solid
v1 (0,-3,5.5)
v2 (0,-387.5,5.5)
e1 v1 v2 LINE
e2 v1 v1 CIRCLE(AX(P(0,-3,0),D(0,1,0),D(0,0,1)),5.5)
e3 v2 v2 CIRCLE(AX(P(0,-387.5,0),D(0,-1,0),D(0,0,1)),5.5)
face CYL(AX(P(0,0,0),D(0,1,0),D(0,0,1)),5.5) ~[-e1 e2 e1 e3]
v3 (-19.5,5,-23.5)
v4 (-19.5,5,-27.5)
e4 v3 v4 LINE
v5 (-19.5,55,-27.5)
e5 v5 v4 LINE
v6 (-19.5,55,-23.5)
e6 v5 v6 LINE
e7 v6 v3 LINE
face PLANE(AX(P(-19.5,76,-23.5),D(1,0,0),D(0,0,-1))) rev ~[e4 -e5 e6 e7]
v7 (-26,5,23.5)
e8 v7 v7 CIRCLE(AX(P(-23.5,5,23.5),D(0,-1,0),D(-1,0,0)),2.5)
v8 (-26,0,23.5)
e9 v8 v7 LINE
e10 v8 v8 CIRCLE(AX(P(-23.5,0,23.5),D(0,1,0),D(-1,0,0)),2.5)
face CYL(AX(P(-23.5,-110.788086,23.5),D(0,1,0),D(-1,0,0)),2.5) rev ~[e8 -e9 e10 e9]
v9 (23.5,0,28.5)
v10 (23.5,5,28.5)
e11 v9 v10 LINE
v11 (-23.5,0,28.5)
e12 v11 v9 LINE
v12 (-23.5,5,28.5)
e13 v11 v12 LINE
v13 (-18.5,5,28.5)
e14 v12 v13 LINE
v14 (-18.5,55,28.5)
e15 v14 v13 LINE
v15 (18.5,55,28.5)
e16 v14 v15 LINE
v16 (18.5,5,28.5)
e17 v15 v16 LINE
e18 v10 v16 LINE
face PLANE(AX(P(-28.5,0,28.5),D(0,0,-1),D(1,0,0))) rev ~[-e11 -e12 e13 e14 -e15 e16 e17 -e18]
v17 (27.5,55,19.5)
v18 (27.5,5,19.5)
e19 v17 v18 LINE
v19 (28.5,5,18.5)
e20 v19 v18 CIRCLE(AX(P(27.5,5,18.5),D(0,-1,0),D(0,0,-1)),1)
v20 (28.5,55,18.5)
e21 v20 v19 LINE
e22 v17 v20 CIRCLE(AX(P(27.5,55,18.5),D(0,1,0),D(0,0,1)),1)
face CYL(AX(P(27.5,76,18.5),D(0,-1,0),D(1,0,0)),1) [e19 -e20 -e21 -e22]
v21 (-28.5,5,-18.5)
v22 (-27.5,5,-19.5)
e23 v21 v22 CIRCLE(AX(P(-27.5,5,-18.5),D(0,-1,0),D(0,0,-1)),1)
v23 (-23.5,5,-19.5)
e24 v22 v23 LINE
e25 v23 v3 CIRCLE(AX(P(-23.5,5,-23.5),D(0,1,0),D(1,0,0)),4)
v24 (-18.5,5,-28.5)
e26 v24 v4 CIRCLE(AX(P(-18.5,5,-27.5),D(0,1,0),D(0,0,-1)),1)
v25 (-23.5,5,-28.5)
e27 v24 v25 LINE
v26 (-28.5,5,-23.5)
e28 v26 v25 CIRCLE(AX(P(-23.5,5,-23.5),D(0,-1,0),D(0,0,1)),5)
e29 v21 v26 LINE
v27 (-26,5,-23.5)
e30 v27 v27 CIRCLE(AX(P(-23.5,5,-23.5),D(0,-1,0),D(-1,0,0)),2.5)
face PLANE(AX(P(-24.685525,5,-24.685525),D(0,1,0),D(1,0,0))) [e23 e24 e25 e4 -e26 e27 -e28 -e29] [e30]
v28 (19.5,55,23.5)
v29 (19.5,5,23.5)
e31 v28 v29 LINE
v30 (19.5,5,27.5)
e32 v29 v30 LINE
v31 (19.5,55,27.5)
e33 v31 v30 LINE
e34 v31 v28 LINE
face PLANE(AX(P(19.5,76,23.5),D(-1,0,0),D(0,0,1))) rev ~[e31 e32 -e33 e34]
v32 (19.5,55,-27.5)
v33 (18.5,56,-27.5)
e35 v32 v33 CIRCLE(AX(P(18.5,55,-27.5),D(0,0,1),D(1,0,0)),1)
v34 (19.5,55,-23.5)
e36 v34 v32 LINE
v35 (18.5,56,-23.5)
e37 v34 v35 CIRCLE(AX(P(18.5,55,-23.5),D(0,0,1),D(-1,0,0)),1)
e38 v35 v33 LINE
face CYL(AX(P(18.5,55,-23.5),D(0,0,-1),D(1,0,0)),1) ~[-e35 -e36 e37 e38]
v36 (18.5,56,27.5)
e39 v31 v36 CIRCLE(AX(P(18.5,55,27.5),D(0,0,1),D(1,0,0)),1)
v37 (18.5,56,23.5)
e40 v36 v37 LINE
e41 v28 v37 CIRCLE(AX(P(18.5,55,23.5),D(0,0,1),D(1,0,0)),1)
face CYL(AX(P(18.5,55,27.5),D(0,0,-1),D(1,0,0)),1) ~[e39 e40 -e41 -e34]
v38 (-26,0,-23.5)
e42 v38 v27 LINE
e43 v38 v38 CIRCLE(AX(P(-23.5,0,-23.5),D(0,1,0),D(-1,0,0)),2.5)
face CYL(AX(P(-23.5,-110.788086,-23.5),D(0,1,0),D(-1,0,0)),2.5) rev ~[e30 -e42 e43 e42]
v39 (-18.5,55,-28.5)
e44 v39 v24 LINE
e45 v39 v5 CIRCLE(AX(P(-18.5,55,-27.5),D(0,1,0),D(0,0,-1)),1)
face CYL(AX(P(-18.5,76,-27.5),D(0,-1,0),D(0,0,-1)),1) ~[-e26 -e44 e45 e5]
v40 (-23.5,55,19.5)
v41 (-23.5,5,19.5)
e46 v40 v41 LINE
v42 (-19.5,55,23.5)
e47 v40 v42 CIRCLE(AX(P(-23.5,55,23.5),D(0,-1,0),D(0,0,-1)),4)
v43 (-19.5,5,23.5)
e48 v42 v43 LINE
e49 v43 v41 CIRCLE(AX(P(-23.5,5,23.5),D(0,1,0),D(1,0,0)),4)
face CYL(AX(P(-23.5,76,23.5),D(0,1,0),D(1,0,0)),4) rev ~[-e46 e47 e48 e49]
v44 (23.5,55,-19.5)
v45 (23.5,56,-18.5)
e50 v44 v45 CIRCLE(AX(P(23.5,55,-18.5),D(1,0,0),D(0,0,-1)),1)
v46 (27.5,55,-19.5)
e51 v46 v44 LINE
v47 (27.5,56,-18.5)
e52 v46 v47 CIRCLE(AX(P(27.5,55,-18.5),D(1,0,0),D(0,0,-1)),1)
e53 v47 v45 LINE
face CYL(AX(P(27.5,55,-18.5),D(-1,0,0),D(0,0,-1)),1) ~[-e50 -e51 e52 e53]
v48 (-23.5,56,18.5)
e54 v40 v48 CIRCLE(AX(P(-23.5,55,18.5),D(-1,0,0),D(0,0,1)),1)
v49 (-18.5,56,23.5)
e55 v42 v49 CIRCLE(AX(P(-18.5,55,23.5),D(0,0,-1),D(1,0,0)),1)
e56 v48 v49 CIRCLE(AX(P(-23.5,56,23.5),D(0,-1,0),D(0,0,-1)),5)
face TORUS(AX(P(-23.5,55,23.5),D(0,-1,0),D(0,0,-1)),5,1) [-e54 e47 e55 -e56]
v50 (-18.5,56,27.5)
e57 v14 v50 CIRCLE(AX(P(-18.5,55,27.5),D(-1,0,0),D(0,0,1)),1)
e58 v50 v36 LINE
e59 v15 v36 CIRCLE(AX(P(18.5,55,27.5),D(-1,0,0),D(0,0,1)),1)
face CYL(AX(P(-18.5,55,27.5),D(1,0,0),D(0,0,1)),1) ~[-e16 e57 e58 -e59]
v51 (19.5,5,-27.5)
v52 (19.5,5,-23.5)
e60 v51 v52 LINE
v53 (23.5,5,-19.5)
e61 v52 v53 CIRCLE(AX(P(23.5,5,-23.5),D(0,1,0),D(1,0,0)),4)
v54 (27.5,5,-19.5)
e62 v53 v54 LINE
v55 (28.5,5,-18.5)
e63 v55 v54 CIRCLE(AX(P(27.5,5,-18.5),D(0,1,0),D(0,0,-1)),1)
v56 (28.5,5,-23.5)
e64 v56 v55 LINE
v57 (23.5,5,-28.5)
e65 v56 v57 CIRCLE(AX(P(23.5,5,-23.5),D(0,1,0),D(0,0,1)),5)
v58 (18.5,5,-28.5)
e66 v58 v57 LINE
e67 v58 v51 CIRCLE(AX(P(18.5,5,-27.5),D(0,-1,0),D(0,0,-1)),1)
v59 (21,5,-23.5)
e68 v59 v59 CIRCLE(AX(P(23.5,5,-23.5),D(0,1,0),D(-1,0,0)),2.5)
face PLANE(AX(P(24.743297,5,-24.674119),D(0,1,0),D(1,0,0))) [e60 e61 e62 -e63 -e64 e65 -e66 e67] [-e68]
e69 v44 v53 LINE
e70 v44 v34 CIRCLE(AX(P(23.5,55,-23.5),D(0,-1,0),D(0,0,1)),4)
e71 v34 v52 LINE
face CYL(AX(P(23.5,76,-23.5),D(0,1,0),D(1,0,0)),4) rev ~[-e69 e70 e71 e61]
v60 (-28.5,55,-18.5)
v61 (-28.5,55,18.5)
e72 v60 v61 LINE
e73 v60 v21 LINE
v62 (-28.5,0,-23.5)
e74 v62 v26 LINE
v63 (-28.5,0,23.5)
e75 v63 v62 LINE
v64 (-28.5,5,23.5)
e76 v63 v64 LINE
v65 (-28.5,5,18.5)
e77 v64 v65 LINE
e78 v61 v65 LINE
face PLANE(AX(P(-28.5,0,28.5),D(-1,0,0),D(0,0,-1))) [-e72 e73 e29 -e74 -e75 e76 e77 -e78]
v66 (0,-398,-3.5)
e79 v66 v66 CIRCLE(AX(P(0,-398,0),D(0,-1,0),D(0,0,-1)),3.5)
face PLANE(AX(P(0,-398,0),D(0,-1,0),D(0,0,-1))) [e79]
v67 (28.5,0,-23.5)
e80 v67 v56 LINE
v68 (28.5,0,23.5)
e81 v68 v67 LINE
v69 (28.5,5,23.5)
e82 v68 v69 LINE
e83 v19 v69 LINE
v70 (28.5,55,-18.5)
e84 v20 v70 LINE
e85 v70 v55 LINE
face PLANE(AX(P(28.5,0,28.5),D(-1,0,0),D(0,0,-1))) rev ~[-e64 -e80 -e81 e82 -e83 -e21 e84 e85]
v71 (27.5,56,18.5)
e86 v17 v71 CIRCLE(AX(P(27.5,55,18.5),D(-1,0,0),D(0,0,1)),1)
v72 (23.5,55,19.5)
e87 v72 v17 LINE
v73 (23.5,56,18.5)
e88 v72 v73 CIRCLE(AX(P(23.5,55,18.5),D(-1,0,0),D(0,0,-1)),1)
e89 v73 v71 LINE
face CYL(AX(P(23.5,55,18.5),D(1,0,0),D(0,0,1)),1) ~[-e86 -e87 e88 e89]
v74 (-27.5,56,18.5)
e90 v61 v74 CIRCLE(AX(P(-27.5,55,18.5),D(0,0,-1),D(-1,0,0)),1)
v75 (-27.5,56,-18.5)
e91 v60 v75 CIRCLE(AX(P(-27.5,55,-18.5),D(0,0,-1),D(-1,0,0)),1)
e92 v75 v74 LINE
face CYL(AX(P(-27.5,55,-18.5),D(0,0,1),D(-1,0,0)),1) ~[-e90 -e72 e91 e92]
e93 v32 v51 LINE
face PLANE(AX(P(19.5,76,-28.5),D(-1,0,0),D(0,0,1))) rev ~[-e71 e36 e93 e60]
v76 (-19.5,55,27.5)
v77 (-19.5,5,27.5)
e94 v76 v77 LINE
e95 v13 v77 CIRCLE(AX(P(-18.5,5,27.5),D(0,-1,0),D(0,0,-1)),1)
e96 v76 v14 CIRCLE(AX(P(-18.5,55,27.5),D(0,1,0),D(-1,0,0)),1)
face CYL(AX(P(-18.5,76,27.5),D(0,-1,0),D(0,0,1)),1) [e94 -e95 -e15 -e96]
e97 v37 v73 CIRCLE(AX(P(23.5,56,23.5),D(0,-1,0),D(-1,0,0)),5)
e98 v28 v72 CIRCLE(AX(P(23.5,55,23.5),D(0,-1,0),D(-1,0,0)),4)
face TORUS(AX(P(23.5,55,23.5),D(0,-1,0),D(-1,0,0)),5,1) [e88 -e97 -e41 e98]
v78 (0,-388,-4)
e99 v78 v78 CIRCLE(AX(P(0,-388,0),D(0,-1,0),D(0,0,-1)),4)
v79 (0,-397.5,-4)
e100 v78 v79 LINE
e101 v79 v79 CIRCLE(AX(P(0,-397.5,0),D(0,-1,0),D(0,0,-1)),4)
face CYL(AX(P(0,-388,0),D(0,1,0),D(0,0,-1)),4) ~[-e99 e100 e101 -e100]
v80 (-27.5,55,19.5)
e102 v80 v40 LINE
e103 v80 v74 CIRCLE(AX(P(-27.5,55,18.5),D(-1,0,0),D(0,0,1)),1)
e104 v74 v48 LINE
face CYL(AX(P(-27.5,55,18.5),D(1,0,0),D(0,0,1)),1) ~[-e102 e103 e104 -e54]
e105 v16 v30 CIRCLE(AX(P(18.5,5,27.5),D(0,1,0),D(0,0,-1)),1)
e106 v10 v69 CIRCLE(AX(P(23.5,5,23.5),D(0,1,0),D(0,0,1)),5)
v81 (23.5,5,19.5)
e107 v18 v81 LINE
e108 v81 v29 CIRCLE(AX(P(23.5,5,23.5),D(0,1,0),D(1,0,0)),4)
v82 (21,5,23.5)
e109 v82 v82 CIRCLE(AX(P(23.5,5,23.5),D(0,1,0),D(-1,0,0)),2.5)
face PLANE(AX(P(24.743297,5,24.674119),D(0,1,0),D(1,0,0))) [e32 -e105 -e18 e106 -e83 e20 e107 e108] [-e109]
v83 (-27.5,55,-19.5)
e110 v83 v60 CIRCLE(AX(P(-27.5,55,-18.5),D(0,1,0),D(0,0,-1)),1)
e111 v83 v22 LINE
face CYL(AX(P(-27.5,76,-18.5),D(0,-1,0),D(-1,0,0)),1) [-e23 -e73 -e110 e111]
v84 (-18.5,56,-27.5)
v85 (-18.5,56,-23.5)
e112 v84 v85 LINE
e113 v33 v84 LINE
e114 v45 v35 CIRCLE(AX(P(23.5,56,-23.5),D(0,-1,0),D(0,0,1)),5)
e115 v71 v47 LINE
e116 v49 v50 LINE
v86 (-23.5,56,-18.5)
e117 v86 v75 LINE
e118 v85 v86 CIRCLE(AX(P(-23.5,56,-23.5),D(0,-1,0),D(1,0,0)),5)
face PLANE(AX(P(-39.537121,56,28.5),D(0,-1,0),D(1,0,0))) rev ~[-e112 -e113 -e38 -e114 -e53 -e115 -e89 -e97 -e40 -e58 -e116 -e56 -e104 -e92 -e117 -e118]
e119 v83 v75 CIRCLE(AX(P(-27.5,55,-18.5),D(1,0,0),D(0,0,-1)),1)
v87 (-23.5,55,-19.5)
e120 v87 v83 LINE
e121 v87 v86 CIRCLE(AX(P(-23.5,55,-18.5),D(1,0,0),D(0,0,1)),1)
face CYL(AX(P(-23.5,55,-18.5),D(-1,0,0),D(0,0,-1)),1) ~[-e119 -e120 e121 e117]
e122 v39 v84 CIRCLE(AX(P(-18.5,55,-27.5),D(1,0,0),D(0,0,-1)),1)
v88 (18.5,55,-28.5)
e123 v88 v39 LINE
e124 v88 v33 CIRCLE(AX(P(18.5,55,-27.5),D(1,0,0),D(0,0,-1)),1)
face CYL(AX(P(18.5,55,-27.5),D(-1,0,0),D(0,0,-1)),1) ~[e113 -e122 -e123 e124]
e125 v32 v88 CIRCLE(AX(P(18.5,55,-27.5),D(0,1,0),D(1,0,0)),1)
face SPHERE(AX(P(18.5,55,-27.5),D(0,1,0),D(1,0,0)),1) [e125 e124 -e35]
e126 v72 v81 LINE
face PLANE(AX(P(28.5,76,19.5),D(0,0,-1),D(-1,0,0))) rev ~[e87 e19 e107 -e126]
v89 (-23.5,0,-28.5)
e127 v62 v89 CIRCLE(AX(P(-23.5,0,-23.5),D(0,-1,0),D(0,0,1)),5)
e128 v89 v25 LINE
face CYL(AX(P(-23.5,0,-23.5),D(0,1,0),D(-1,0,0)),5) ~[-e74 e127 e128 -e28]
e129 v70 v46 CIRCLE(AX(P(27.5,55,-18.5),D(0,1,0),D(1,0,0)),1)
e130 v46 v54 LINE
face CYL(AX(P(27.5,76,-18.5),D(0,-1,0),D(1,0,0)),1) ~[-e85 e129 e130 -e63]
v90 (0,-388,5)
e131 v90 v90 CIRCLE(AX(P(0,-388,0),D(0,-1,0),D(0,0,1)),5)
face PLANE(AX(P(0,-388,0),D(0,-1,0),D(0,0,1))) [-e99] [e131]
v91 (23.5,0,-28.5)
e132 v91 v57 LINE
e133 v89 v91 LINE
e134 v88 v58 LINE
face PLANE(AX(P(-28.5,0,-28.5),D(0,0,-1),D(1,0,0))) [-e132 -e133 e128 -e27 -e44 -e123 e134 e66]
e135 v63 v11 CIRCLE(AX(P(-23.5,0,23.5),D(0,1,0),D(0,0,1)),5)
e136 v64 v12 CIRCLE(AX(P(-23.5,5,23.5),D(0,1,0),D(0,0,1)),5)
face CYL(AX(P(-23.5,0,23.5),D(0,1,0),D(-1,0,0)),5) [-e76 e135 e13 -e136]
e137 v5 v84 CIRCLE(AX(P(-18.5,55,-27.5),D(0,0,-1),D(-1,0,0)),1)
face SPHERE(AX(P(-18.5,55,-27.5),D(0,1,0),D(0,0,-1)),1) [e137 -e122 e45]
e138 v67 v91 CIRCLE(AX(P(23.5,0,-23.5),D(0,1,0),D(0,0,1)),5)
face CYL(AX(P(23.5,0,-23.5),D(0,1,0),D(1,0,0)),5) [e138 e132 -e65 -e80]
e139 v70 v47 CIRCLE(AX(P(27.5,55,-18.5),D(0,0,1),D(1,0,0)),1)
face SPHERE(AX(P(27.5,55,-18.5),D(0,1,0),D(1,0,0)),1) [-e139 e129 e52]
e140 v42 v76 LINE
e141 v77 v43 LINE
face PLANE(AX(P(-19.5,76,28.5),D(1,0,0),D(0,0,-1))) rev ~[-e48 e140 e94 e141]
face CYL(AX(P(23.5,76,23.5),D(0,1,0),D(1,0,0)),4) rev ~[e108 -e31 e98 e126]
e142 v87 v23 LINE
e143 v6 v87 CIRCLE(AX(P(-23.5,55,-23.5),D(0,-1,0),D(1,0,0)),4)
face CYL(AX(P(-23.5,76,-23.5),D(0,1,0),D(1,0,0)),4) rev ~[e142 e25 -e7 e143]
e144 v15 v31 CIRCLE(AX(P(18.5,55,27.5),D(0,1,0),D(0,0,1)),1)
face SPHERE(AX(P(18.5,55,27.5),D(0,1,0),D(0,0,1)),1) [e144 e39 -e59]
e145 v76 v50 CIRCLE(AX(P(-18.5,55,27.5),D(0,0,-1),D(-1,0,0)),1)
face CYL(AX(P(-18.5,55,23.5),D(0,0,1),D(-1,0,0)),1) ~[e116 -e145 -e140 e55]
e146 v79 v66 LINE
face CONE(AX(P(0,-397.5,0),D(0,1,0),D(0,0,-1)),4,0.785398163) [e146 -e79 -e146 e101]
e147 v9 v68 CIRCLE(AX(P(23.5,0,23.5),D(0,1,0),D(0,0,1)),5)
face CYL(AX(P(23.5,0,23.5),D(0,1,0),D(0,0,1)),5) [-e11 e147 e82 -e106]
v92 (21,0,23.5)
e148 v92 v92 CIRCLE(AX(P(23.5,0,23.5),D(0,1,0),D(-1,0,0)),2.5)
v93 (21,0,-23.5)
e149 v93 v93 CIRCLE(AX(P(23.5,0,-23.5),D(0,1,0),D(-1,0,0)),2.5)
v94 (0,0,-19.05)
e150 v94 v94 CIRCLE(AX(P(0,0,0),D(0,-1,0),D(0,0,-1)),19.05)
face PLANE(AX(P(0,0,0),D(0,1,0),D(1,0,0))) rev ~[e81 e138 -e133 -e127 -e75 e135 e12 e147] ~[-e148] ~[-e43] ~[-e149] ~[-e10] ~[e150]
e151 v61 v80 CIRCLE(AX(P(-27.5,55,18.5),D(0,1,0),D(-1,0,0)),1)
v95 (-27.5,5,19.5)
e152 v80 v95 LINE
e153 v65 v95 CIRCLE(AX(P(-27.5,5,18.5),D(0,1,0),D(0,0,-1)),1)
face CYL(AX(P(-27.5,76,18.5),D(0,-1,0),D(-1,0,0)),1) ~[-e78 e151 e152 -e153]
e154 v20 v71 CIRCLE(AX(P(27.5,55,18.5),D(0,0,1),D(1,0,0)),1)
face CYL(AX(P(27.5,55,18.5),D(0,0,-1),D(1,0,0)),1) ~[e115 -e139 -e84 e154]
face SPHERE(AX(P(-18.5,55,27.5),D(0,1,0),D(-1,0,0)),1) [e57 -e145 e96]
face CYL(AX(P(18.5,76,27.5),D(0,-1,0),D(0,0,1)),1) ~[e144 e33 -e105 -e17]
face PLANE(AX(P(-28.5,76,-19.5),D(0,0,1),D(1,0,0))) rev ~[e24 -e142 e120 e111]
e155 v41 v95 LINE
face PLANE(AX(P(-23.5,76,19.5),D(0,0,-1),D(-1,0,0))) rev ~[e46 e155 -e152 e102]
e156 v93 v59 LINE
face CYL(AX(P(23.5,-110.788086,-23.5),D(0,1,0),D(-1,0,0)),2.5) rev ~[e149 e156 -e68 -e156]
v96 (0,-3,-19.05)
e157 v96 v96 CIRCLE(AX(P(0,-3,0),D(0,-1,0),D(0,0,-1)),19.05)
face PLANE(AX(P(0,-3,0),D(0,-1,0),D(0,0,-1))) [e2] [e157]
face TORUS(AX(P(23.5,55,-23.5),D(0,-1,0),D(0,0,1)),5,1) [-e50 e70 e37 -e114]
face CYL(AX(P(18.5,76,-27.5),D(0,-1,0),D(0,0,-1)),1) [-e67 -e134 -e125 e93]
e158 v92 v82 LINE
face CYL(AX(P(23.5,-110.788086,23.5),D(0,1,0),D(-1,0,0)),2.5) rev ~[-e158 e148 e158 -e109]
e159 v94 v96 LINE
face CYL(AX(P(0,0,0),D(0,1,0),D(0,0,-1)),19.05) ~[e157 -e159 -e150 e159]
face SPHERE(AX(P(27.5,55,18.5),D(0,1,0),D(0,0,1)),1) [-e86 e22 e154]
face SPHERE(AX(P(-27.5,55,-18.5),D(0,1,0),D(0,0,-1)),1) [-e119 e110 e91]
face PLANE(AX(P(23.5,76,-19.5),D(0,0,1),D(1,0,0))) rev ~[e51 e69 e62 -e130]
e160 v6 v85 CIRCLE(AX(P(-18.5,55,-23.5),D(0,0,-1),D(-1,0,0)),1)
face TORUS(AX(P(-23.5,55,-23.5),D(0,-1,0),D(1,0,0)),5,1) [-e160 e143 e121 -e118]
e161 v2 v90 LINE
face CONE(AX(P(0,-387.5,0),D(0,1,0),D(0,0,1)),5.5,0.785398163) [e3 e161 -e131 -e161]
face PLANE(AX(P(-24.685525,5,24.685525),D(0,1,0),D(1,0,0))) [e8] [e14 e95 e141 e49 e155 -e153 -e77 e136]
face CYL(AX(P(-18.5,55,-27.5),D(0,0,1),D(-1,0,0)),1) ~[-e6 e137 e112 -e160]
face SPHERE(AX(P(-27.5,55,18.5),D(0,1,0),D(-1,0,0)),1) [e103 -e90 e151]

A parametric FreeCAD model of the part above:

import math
import FreeCAD as App
import Part
import Sketcher


def edges_at(feature, points):
    """Names of the edges that pass closest to the given points."""
    edges = feature.Shape.Edges
    near = lambda p: min(range(len(edges)), key=lambda i: edges[i].distToShape(Part.Vertex(*p))[0])
    return sorted({f"Edge{near(p) + 1}" for p in points})

doc = App.newDocument("Part")
params = doc.addObject("Spreadsheet::Sheet", "Params")
for row, (alias, value) in enumerate([
    ("sketch1_width", "57 mm"),
    ("pad1_length", "76 mm"),
    ("sketch2_diameter", "5 mm"),
    ("hole_diameter", "5 mm"),
    ("sketch3_diameter", "5 mm"),
    ("sketch3_radius", "4 mm"),
    ("pocket1_length", "71 mm"),
    ("fillet_radius", "5 mm"),
    ("sketch4_diameter", "6 mm"),
    ("pad2_length", "101 mm"),
    ("sketch5_diameter", "38.1 mm"),
    ("pad3_length", "3 mm"),
    ("fillet2_radius", "1 mm"),
    ("sketch6_diameter", "11 mm"),
    ("pad4_length", "388 mm"),
    ("chamfer_size", "0.5 mm"),
    ("sketch7_diameter", "8 mm"),
    ("pad5_length", "10 mm"),
    ("chamfer2_size", "0.5 mm"),
    ("fillet3_radius", "1 mm"),
], start=1):
    params.set(f"A{row}", alias)
    params.set(f"B{row}", "=" + value)
    params.setAlias(f"B{row}", alias)

body = doc.addObject("PartDesign::Body", "Body")

# Sketch on XZ plane
sketch1 = body.newObject("Sketcher::SketchObject", "Sketch")
sketch1.AttachmentSupport = (doc.getObject("XZ_Plane"), [""])
sketch1.MapMode = "FlatFace"
sketch1.addGeometry(Part.LineSegment(App.Vector(-28, -28, 0), App.Vector(-28, 28, 0)), False)
sketch1.addGeometry(Part.LineSegment(App.Vector(-28, 28, 0), App.Vector(28, 28, 0)), False)
sketch1.addGeometry(Part.LineSegment(App.Vector(28, 28, 0), App.Vector(28, -28, 0)), False)
sketch1.addGeometry(Part.LineSegment(App.Vector(28, -28, 0), App.Vector(-28, -28, 0)), False)
sketch1.addConstraint(Sketcher.Constraint("Coincident", 0, 2, 1, 1))
sketch1.addConstraint(Sketcher.Constraint("Coincident", 1, 2, 2, 1))
sketch1.addConstraint(Sketcher.Constraint("Coincident", 2, 2, 3, 1))
sketch1.addConstraint(Sketcher.Constraint("Coincident", 3, 2, 0, 1))
sketch1.addConstraint(Sketcher.Constraint("Vertical", 0))
sketch1.addConstraint(Sketcher.Constraint("Horizontal", 1))
sketch1.addConstraint(Sketcher.Constraint("Vertical", 2))
sketch1.addConstraint(Sketcher.Constraint("Horizontal", 3))
sketch1.addConstraint(Sketcher.Constraint("Symmetric", 0, 2, 2, 2, -1, 1))
sketch1.addConstraint(Sketcher.Constraint("Equal", 3, 0))
sketch1.addConstraint(Sketcher.Constraint("DistanceX", 1, 1, 1, 2, 57.0))
sketch1.setExpression("Constraints[10]", "Params.sketch1_width")
pad1 = body.newObject("PartDesign::Pad", "Pad")
pad1.Profile = sketch1
pad1.setExpression("Length", "Params.pad1_length")
pad1.Reversed = True

# Sketch on XZ plane
sketch2 = body.newObject("Sketcher::SketchObject", "Sketch001")
sketch2.AttachmentSupport = (doc.getObject("XZ_Plane"), [""])
sketch2.MapMode = "FlatFace"
sketch2.addGeometry(Part.Circle(App.Vector(-23.5, 23.5, 0), App.Vector(0, 0, 1), 2.5), False)
sketch2.addGeometry(Part.Circle(App.Vector(23.5, 23.5, 0), App.Vector(0, 0, 1), 2.5), False)
sketch2.addGeometry(Part.Circle(App.Vector(23.5, -23.5, 0), App.Vector(0, 0, 1), 2.5), False)
sketch2.addGeometry(Part.Circle(App.Vector(-23.5, -23.5, 0), App.Vector(0, 0, 1), 2.5), False)
sketch2.addConstraint(Sketcher.Constraint("Equal", 0, 1))
sketch2.addConstraint(Sketcher.Constraint("Equal", 1, 2))
sketch2.addConstraint(Sketcher.Constraint("Equal", 2, 3))
sketch2.addConstraint(Sketcher.Constraint("Symmetric", 0, 3, 2, 3, -1, 1))
sketch2.addConstraint(Sketcher.Constraint("Symmetric", 1, 3, 3, 3, -1, 1))
sketch2.addConstraint(Sketcher.Constraint("Symmetric", 0, 3, 1, 3, -2))
sketch2.addConstraint(Sketcher.Constraint("Diameter", 0, 5.0))
sketch2.addConstraint(Sketcher.Constraint("DistanceX", 0, 3, 1, 3, 47.0))
sketch2.addConstraint(Sketcher.Constraint("DistanceY", 2, 3, 1, 3, 47.0))
sketch2.setExpression("Constraints[6]", "Params.sketch2_diameter")
doc.recompute()
hole = body.newObject("PartDesign::Hole", "Hole")
hole.Profile = sketch2
hole.ThreadType = "None"
hole.setExpression("Diameter", "Params.hole_diameter")
hole.DepthType = "ThroughAll"

# Sketch on XZ plane
sketch3 = body.newObject("Sketcher::SketchObject", "Sketch002")
sketch3.AttachmentSupport = (doc.getObject("XZ_Plane"), [""])
sketch3.MapMode = "FlatFace"
sketch3.AttachmentOffset = App.Placement(App.Vector(0, 0, -76), App.Rotation())
sketch3.addGeometry(Part.LineSegment(App.Vector(-19.5, -32.5, 0), App.Vector(-33.9, -32.5, 0)), False)
sketch3.addGeometry(Part.LineSegment(App.Vector(-33.9, -32.5, 0), App.Vector(-33.9, -19.5, 0)), False)
sketch3.addGeometry(Part.LineSegment(App.Vector(-33.9, -19.5, 0), App.Vector(-23.5, -19.5, 0)), False)
sketch3.addGeometry(Part.ArcOfCircle(Part.Circle(App.Vector(-23.5, -23.5, 0), App.Vector(0, 0, 1), 4), math.radians(0), math.radians(90)), False)
sketch3.addGeometry(Part.LineSegment(App.Vector(-19.5, -23.5, 0), App.Vector(-19.5, -32.5, 0)), False)
sketch3.addGeometry(Part.Circle(App.Vector(-23.5, -23.5, 0), App.Vector(0, 0, 1), 2.5), False)
sketch3.addGeometry(Part.LineSegment(App.Vector(19.5, -36.5, 0), App.Vector(19.5, -23.5, 0)), False)
sketch3.addGeometry(Part.ArcOfCircle(Part.Circle(App.Vector(23.5, -23.5, 0), App.Vector(0, 0, 1), 4), math.radians(90), math.radians(180)), False)
sketch3.addGeometry(Part.LineSegment(App.Vector(23.5, -19.5, 0), App.Vector(41.2, -19.5, 0)), False)
sketch3.addGeometry(Part.LineSegment(App.Vector(41.2, -19.5, 0), App.Vector(41.2, -36.5, 0)), False)
sketch3.addGeometry(Part.LineSegment(App.Vector(41.2, -36.5, 0), App.Vector(19.5, -36.5, 0)), False)
sketch3.addGeometry(Part.Circle(App.Vector(23.5, -23.5, 0), App.Vector(0, 0, 1), 2.5), False)
sketch3.addGeometry(Part.ArcOfCircle(Part.Circle(App.Vector(23.5, 23.5, 0), App.Vector(0, 0, 1), 4), math.radians(180), math.radians(270)), False)
sketch3.addGeometry(Part.LineSegment(App.Vector(19.5, 23.5, 0), App.Vector(19.5, 40.1, 0)), False)
sketch3.addGeometry(Part.LineSegment(App.Vector(19.5, 40.1, 0), App.Vector(44.3, 40.1, 0)), False)
sketch3.addGeometry(Part.LineSegment(App.Vector(44.3, 40.1, 0), App.Vector(44.3, 19.5, 0)), False)
sketch3.addGeometry(Part.LineSegment(App.Vector(44.3, 19.5, 0), App.Vector(23.5, 19.5, 0)), False)
sketch3.addGeometry(Part.Circle(App.Vector(23.5, 23.5, 0), App.Vector(0, 0, 1), 2.5), False)
sketch3.addGeometry(Part.LineSegment(App.Vector(-37.7, 19.5, 0), App.Vector(-37.7, 37.8, 0)), False)
sketch3.addGeometry(Part.LineSegment(App.Vector(-37.7, 37.8, 0), App.Vector(-19.5, 37.8, 0)), False)
sketch3.addGeometry(Part.LineSegment(App.Vector(-19.5, 37.8, 0), App.Vector(-19.5, 23.5, 0)), False)
sketch3.addGeometry(Part.ArcOfCircle(Part.Circle(App.Vector(-23.5, 23.5, 0), App.Vector(0, 0, 1), 4), math.radians(-90), math.radians(0)), False)
sketch3.addGeometry(Part.LineSegment(App.Vector(-23.5, 19.5, 0), App.Vector(-37.7, 19.5, 0)), False)
sketch3.addGeometry(Part.Circle(App.Vector(-23.5, 23.5, 0), App.Vector(0, 0, 1), 2.5), False)
sketch3.addConstraint(Sketcher.Constraint("Coincident", 0, 2, 1, 1))
sketch3.addConstraint(Sketcher.Constraint("Coincident", 1, 2, 2, 1))
sketch3.addConstraint(Sketcher.Constraint("Tangent", 2, 2, 3, 2))
sketch3.addConstraint(Sketcher.Constraint("Tangent", 3, 1, 4, 1))
sketch3.addConstraint(Sketcher.Constraint("Coincident", 4, 2, 0, 1))
sketch3.addConstraint(Sketcher.Constraint("Tangent", 6, 2, 7, 2))
sketch3.addConstraint(Sketcher.Constraint("Tangent", 7, 1, 8, 1))
sketch3.addConstraint(Sketcher.Constraint("Coincident", 8, 2, 9, 1))
sketch3.addConstraint(Sketcher.Constraint("Coincident", 9, 2, 10, 1))
sketch3.addConstraint(Sketcher.Constraint("Coincident", 10, 2, 6, 1))
sketch3.addConstraint(Sketcher.Constraint("Tangent", 12, 1, 13, 1))
sketch3.addConstraint(Sketcher.Constraint("Coincident", 13, 2, 14, 1))
sketch3.addConstraint(Sketcher.Constraint("Coincident", 14, 2, 15, 1))
sketch3.addConstraint(Sketcher.Constraint("Coincident", 15, 2, 16, 1))
sketch3.addConstraint(Sketcher.Constraint("Tangent", 16, 2, 12, 2))
sketch3.addConstraint(Sketcher.Constraint("Coincident", 18, 2, 19, 1))
sketch3.addConstraint(Sketcher.Constraint("Coincident", 19, 2, 20, 1))
sketch3.addConstraint(Sketcher.Constraint("Tangent", 20, 2, 21, 2))
sketch3.addConstraint(Sketcher.Constraint("Tangent", 21, 1, 22, 1))
sketch3.addConstraint(Sketcher.Constraint("Coincident", 22, 2, 18, 1))
sketch3.addConstraint(Sketcher.Constraint("Horizontal", 0))
sketch3.addConstraint(Sketcher.Constraint("Vertical", 1))
sketch3.addConstraint(Sketcher.Constraint("Horizontal", 2))
sketch3.addConstraint(Sketcher.Constraint("Vertical", 4))
sketch3.addConstraint(Sketcher.Constraint("Vertical", 6))
sketch3.addConstraint(Sketcher.Constraint("Horizontal", 8))
sketch3.addConstraint(Sketcher.Constraint("Vertical", 9))
sketch3.addConstraint(Sketcher.Constraint("Horizontal", 10))
sketch3.addConstraint(Sketcher.Constraint("Vertical", 13))
sketch3.addConstraint(Sketcher.Constraint("Horizontal", 14))
sketch3.addConstraint(Sketcher.Constraint("Vertical", 15))
sketch3.addConstraint(Sketcher.Constraint("Horizontal", 16))
sketch3.addConstraint(Sketcher.Constraint("Vertical", 18))
sketch3.addConstraint(Sketcher.Constraint("Horizontal", 19))
sketch3.addConstraint(Sketcher.Constraint("Vertical", 20))
sketch3.addConstraint(Sketcher.Constraint("Horizontal", 22))
sketch3.addConstraint(Sketcher.Constraint("Coincident", 5, 3, 3, 3))
sketch3.addConstraint(Sketcher.Constraint("Coincident", 11, 3, 7, 3))
sketch3.addConstraint(Sketcher.Constraint("Coincident", 17, 3, 12, 3))
sketch3.addConstraint(Sketcher.Constraint("Coincident", 23, 3, 21, 3))
sketch3.addConstraint(Sketcher.Constraint("Equal", 3, 7))
sketch3.addConstraint(Sketcher.Constraint("Equal", 5, 11))
sketch3.addConstraint(Sketcher.Constraint("Equal", 7, 12))
sketch3.addConstraint(Sketcher.Constraint("Equal", 11, 17))
sketch3.addConstraint(Sketcher.Constraint("Equal", 12, 21))
sketch3.addConstraint(Sketcher.Constraint("Equal", 17, 23))
sketch3.addConstraint(Sketcher.Constraint("Symmetric", 3, 3, 12, 3, -1, 1))
sketch3.addConstraint(Sketcher.Constraint("Symmetric", 7, 3, 21, 3, -1, 1))
sketch3.addConstraint(Sketcher.Constraint("Symmetric", 3, 3, 7, 3, -2))
sketch3.addConstraint(Sketcher.Constraint("Diameter", 5, 5.0))
sketch3.addConstraint(Sketcher.Constraint("Radius", 3, 4.0))
sketch3.addConstraint(Sketcher.Constraint("DistanceX", 3, 3, 7, 3, 47.0))
sketch3.addConstraint(Sketcher.Constraint("DistanceY", 7, 3, 12, 3, 47.0))
sketch3.addConstraint(Sketcher.Constraint("DistanceX", 14, 1, 14, 2, 24.75221))
sketch3.addConstraint(Sketcher.Constraint("DistanceY", 1, 1, 1, 2, 13.011741))
sketch3.addConstraint(Sketcher.Constraint("DistanceY", 6, 1, 6, 2, 12.97156))
sketch3.addConstraint(Sketcher.Constraint("DistanceY", 13, 1, 13, 2, 16.55043))
sketch3.addConstraint(Sketcher.Constraint("DistanceY", 18, 1, 18, 2, 18.328232))
sketch3.addConstraint(Sketcher.Constraint("DistanceX", 0, 2, 0, 1, 14.408906))
sketch3.addConstraint(Sketcher.Constraint("DistanceX", 8, 1, 8, 2, 17.668353))
sketch3.addConstraint(Sketcher.Constraint("DistanceX", 19, 1, 19, 2, 18.170787))
sketch3.setExpression("Constraints[49]", "Params.sketch3_diameter")
sketch3.setExpression("Constraints[50]", "Params.sketch3_radius")
pocket1 = body.newObject("PartDesign::Pocket", "Pocket")
pocket1.Profile = sketch3
pocket1.setExpression("Length", "Params.pocket1_length")
pocket1.Reversed = True
doc.recompute()

fillet = body.newObject("PartDesign::Fillet", "Fillet")
fillet.Base = (pocket1, edges_at(pocket1, [
    (-28.5, 2.5, 28.5),
    (-28.5, 2.5, -28.5),
    (28.5, 2.5, -28.5),
    (28.5, 2.5, 28.5),
]))
fillet.setExpression("Radius", "Params.fillet_radius")
body2 = doc.addObject("PartDesign::Body", "Body001")

# Sketch on XZ plane
sketch4 = body2.newObject("Sketcher::SketchObject", "Sketch003")
sketch4.AttachmentSupport = (doc.getObject("XZ_Plane001"), [""])
sketch4.MapMode = "FlatFace"
sketch4.AttachmentOffset = App.Placement(App.Vector(0, 0, -76), App.Rotation())
sketch4.addGeometry(Part.Circle(App.Vector(0, 0, 0), App.Vector(0, 0, 1), 3), False)
sketch4.addConstraint(Sketcher.Constraint("Coincident", 0, 3, -1, 1))
sketch4.addConstraint(Sketcher.Constraint("Diameter", 0, 6.0))
sketch4.setExpression("Constraints[1]", "Params.sketch4_diameter")
pad2 = body2.newObject("PartDesign::Pad", "Pad001")
pad2.Profile = sketch4
pad2.setExpression("Length", "Params.pad2_length")
doc.recompute()

boolean = body.newObject("PartDesign::Boolean", "Boolean")
boolean.Type = "Fuse"
boolean.addObjects([body2])

# Sketch on XZ plane
sketch5 = body.newObject("Sketcher::SketchObject", "Sketch004")
sketch5.AttachmentSupport = (doc.getObject("XZ_Plane"), [""])
sketch5.MapMode = "FlatFace"
sketch5.addGeometry(Part.Circle(App.Vector(0, 0, 0), App.Vector(0, 0, 1), 19), False)
sketch5.addConstraint(Sketcher.Constraint("Coincident", 0, 3, -1, 1))
sketch5.addConstraint(Sketcher.Constraint("Diameter", 0, 38.1))
sketch5.setExpression("Constraints[1]", "Params.sketch5_diameter")
pad3 = body.newObject("PartDesign::Pad", "Pad002")
pad3.Profile = sketch5
pad3.setExpression("Length", "Params.pad3_length")
doc.recompute()

fillet2 = body.newObject("PartDesign::Fillet", "Fillet001")
fillet2.Base = (pad3, edges_at(pad3, [
    (-28.5, 40.5, 19.5),
    (0, 76, 28.5),
    (-19.5, 40.5, 28.5),
    (-19.5, 76, 26),
    (-20.672, 76, 20.672),
    (-26, 76, 19.5),
    (-28.5, 76, 0),
    (-28.5, 40.5, -19.5),
    (-19.5, 40.5, -28.5),
    (-19.5, 76, -26),
    (-26, 76, -19.5),
    (-20.672, 76, -20.672),
    (0, 76, -28.5),
    (19.5, 76, -26),
    (26, 76, -19.5),
    (20.672, 76, -20.672),
    (19.5, 40.5, -28.5),
    (28.5, 40.5, -19.5),
    (19.5, 40.5, 28.5),
    (28.5, 76, 0),
    (26, 76, 19.5),
    (19.5, 76, 26),
    (20.672, 76, 20.672),
    (28.5, 40.5, 19.5),
]))
fillet2.setExpression("Radius", "Params.fillet2_radius")

# Sketch on XZ plane
sketch6 = body.newObject("Sketcher::SketchObject", "Sketch005")
sketch6.AttachmentSupport = (doc.getObject("XZ_Plane"), [""])
sketch6.MapMode = "FlatFace"
sketch6.addGeometry(Part.Circle(App.Vector(0, 0, 0), App.Vector(0, 0, 1), 6), False)
sketch6.addConstraint(Sketcher.Constraint("Coincident", 0, 3, -1, 1))
sketch6.addConstraint(Sketcher.Constraint("Diameter", 0, 11.0))
sketch6.setExpression("Constraints[1]", "Params.sketch6_diameter")
pad4 = body.newObject("PartDesign::Pad", "Pad003")
pad4.Profile = sketch6
pad4.setExpression("Length", "Params.pad4_length")
doc.recompute()

chamfer = body.newObject("PartDesign::Chamfer", "Chamfer")
chamfer.Base = (pad4, edges_at(pad4, [(0, -388, -5.5)]))
chamfer.setExpression("Size", "Params.chamfer_size")

# Sketch on XZ plane
sketch7 = body.newObject("Sketcher::SketchObject", "Sketch006")
sketch7.AttachmentSupport = (doc.getObject("XZ_Plane"), [""])
sketch7.MapMode = "FlatFace"
sketch7.AttachmentOffset = App.Placement(App.Vector(0, 0, 388), App.Rotation())
sketch7.addGeometry(Part.Circle(App.Vector(0, 0, 0), App.Vector(0, 0, 1), 4), False)
sketch7.addConstraint(Sketcher.Constraint("Coincident", 0, 3, -1, 1))
sketch7.addConstraint(Sketcher.Constraint("Diameter", 0, 8.0))
sketch7.setExpression("Constraints[1]", "Params.sketch7_diameter")
pad5 = body.newObject("PartDesign::Pad", "Pad004")
pad5.Profile = sketch7
pad5.setExpression("Length", "Params.pad5_length")
doc.recompute()

chamfer2 = body.newObject("PartDesign::Chamfer", "Chamfer001")
chamfer2.Base = (pad5, edges_at(pad5, [(0, -398, 4)]))
chamfer2.setExpression("Size", "Params.chamfer2_size")

# Sketch on XY plane
sketch8 = body.newObject("Sketcher::SketchObject", "Sketch007")
sketch8.AttachmentSupport = (doc.getObject("XY_Plane"), [""])
sketch8.MapMode = "FlatFace"
sketch8.AttachmentOffset = App.Placement(App.Vector(0, 0, 28.5), App.Rotation())
sketch8.addGeometry(Part.LineSegment(App.Vector(-40, 88, 0), App.Vector(-40, 56, 0)), False)
sketch8.addGeometry(Part.LineSegment(App.Vector(-40, 56, 0), App.Vector(42, 56, 0)), False)
sketch8.addGeometry(Part.LineSegment(App.Vector(42, 56, 0), App.Vector(42, 88, 0)), False)
sketch8.addGeometry(Part.LineSegment(App.Vector(42, 88, 0), App.Vector(-40, 88, 0)), False)
sketch8.addConstraint(Sketcher.Constraint("Coincident", 0, 2, 1, 1))
sketch8.addConstraint(Sketcher.Constraint("Coincident", 1, 2, 2, 1))
sketch8.addConstraint(Sketcher.Constraint("Coincident", 2, 2, 3, 1))
sketch8.addConstraint(Sketcher.Constraint("Coincident", 3, 2, 0, 1))
sketch8.addConstraint(Sketcher.Constraint("Vertical", 0))
sketch8.addConstraint(Sketcher.Constraint("Horizontal", 1))
sketch8.addConstraint(Sketcher.Constraint("Vertical", 2))
sketch8.addConstraint(Sketcher.Constraint("Horizontal", 3))
sketch8.addConstraint(Sketcher.Constraint("DistanceY", -1, 1, 0, 2, 56.0))
sketch8.addConstraint(Sketcher.Constraint("DistanceX", 1, 1, 1, 2, 81.226597))
sketch8.addConstraint(Sketcher.Constraint("DistanceY", 0, 2, 0, 1, 31.824544))
sketch8.addConstraint(Sketcher.Constraint("DistanceX", 0, 2, -1, 1, 39.537121))
pocket2 = body.newObject("PartDesign::Pocket", "Pocket001")
pocket2.Profile = sketch8
pocket2.Type = "UpToFirst"
doc.recompute()

fillet3 = body.newObject("PartDesign::Fillet", "Fillet002")
fillet3.Base = (pocket2, edges_at(pocket2, [
    (0, 56, 28.5),
    (19.5, 56, 25.5),
    (19.207, 56, 28.207),
    (-19.207, 56, 28.207),
    (-28.207, 56, 19.207),
    (-28.207, 56, -19.207),
    (-19.207, 56, -28.207),
    (19.207, 56, -28.207),
    (19.5, 56, -25.5),
    (25.5, 56, -19.5),
    (28.207, 56, -19.207),
    (28.207, 56, 19.207),
    (25.5, 56, 19.5),
    (28.5, 56, 0),
    (0, 56, -28.5),
    (-28.5, 56, 0),
    (-25.5, 56, -19.5),
    (-19.5, 56, -25.5),
    (-20.672, 56, -20.672),
    (20.672, 56, -20.672),
    (20.672, 56, 20.672),
    (-19.5, 56, 25.5),
    (-25.5, 56, 19.5),
    (-20.672, 56, 20.672),
]))
fillet3.setExpression("Radius", "Params.fillet3_radius")

doc.recompute()
